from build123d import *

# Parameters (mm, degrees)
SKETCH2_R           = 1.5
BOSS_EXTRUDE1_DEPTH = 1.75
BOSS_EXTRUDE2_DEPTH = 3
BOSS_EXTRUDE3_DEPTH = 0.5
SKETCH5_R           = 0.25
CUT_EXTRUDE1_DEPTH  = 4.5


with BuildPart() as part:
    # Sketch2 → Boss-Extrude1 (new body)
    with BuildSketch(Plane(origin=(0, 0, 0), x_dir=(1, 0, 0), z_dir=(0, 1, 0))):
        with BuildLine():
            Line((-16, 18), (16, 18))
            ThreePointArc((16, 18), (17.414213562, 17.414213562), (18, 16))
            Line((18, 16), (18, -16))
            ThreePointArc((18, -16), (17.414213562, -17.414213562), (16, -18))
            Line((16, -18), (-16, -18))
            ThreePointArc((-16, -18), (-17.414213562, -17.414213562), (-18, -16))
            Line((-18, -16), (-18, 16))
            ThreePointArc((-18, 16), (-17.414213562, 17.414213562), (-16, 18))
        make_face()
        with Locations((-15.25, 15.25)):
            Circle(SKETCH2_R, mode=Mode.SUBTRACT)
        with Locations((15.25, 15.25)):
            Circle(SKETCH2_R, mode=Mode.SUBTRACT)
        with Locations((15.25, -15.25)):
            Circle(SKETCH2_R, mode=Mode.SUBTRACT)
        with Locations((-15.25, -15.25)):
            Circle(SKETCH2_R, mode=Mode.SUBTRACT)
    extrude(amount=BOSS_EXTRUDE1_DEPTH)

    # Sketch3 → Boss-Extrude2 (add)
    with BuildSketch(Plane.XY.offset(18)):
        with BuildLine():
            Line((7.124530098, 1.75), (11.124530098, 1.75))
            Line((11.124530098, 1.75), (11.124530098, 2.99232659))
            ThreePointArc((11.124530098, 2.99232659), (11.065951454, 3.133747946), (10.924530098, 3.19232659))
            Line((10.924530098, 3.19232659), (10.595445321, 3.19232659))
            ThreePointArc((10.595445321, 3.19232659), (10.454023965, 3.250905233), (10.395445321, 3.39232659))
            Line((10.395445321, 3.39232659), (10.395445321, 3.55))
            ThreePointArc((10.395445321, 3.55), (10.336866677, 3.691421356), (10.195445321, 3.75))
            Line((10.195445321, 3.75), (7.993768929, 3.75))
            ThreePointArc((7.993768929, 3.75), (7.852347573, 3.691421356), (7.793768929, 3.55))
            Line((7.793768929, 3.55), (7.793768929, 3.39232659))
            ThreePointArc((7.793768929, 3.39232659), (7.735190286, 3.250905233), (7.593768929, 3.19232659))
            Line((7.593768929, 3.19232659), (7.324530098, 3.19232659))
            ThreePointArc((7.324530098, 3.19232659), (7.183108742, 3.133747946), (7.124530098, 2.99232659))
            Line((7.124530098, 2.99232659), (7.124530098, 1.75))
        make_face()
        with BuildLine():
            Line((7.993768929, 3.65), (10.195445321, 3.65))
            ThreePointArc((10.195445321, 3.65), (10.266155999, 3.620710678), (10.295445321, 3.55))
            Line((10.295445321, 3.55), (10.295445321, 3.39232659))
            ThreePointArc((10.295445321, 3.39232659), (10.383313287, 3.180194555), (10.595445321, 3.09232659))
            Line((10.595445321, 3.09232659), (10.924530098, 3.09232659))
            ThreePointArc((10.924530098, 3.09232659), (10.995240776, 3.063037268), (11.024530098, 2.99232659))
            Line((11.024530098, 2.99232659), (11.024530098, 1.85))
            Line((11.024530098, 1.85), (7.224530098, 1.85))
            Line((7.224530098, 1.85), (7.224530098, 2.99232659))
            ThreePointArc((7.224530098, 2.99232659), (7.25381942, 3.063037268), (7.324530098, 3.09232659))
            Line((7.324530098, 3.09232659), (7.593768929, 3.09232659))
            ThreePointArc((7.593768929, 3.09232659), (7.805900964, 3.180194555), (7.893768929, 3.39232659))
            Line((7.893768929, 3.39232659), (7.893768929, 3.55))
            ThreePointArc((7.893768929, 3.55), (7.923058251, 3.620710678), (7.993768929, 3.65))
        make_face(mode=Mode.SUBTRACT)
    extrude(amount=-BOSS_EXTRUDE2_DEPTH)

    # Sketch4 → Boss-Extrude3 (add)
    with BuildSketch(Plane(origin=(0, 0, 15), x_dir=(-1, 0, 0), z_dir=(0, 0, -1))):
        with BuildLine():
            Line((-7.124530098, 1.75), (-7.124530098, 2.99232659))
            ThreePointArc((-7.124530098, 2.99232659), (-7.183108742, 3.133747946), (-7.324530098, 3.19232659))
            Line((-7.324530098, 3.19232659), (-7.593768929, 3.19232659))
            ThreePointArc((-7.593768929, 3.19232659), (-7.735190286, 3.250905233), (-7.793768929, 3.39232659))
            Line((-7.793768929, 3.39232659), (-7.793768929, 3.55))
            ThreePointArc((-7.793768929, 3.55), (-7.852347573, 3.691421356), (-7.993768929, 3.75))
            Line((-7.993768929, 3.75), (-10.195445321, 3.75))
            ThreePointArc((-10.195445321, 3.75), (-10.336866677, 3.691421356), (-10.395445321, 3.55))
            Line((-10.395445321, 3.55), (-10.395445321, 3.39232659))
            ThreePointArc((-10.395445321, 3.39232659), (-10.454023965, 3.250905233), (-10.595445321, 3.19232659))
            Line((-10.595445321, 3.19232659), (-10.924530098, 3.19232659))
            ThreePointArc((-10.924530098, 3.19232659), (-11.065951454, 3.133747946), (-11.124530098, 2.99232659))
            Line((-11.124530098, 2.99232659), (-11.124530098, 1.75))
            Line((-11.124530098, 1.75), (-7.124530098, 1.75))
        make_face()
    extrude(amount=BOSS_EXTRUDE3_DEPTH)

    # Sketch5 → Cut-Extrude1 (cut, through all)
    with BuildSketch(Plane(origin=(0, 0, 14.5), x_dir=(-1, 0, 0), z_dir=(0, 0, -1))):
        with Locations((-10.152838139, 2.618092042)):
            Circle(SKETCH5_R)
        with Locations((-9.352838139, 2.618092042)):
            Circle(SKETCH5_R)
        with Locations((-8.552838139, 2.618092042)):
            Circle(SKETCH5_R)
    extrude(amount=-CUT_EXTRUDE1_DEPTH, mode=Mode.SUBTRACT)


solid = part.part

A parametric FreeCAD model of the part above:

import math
import FreeCAD as App
import Part
import Sketcher

doc = App.newDocument("Part")
body = doc.addObject("PartDesign::Body", "Body")

# Sketch on XZ plane
sketch1 = body.newObject("Sketcher::SketchObject", "Sketch")
sketch1.AttachmentSupport = (doc.getObject("XZ_Plane"), [""])
sketch1.MapMode = "FlatFace"
sketch1.addGeometry([
    Part.LineSegment(App.Vector(16, -18, 0), App.Vector(-16, -18, 0)),  # 0
    Part.ArcOfCircle(Part.Circle(App.Vector(-16, -16, 0), App.Vector(0, 0, 1), 2), math.radians(-180), math.radians(-90)),  # 1
    Part.LineSegment(App.Vector(-18, -16, 0), App.Vector(-18, 16, 0)),  # 2
    Part.ArcOfCircle(Part.Circle(App.Vector(-16, 16, 0), App.Vector(0, 0, 1), 2), math.radians(90), math.radians(180)),  # 3
    Part.LineSegment(App.Vector(-16, 18, 0), App.Vector(16, 18, 0)),  # 4
    Part.ArcOfCircle(Part.Circle(App.Vector(16, 16, 0), App.Vector(0, 0, 1), 2), math.radians(0), math.radians(90)),  # 5
    Part.LineSegment(App.Vector(18, 16, 0), App.Vector(18, -16, 0)),  # 6
    Part.ArcOfCircle(Part.Circle(App.Vector(16, -16, 0), App.Vector(0, 0, 1), 2), math.radians(-90), math.radians(0)),  # 7
    Part.Circle(App.Vector(15.25, 15.25, 0), App.Vector(0, 0, 1), 1.5),  # 8
    Part.Circle(App.Vector(-15.25, 15.25, 0), App.Vector(0, 0, 1), 1.5),  # 9
    Part.Circle(App.Vector(15.25, -15.25, 0), App.Vector(0, 0, 1), 1.5),  # 10
    Part.Circle(App.Vector(-15.25, -15.25, 0), App.Vector(0, 0, 1), 1.5),  # 11
], False)
sketch1.addConstraint([
    Sketcher.Constraint("Tangent", 0, 2, 1, 2),
    Sketcher.Constraint("Tangent", 1, 1, 2, 1),
    Sketcher.Constraint("Tangent", 2, 2, 3, 2),
    Sketcher.Constraint("Tangent", 3, 1, 4, 1),
    Sketcher.Constraint("Tangent", 4, 2, 5, 2),
    Sketcher.Constraint("Tangent", 5, 1, 6, 1),
    Sketcher.Constraint("Tangent", 6, 2, 7, 2),
    Sketcher.Constraint("Tangent", 7, 1, 0, 1),
    Sketcher.Constraint("Horizontal", 0),
    Sketcher.Constraint("Vertical", 2),
    Sketcher.Constraint("Horizontal", 4),
    Sketcher.Constraint("Vertical", 6),
    Sketcher.Constraint("Equal", 1, 3),
    Sketcher.Constraint("Equal", 3, 5),
    Sketcher.Constraint("Equal", 5, 7),
    Sketcher.Constraint("Equal", 8, 9),
    Sketcher.Constraint("Equal", 9, 10),
    Sketcher.Constraint("Equal", 10, 11),
    Sketcher.Constraint("Symmetric", 1, 3, 5, 3, -1, 1),
    Sketcher.Constraint("Symmetric", 9, 3, 10, 3, -1, 1),
    Sketcher.Constraint("Symmetric", 8, 3, 11, 3, -1, 1),
    Sketcher.Constraint("Symmetric", 8, 3, 9, 3, -2),
    Sketcher.Constraint("Equal", 4, 2),
    Sketcher.Constraint("Diameter", 8, 3.0),
    Sketcher.Constraint("Radius", 1, 2.0),
    Sketcher.Constraint("DistanceX", 0, 2, 0, 1, 32.0),
    Sketcher.Constraint("DistanceX", 9, 3, 8, 3, 30.5),
    Sketcher.Constraint("DistanceY", 10, 3, 8, 3, 30.5),
])
pad1 = body.newObject("PartDesign::Pad", "Pad")
pad1.Profile = sketch1
pad1.Length = 1.75
pad1.Reversed = True

# Sketch on XY plane
sketch2 = body.newObject("Sketcher::SketchObject", "Sketch001")
sketch2.AttachmentSupport = (doc.getObject("XY_Plane"), [""])
sketch2.MapMode = "FlatFace"
sketch2.AttachmentOffset = App.Placement(App.Vector(0, 0, 18), App.Rotation())
sketch2.addGeometry([
    Part.LineSegment(App.Vector(7.12453, 1.75, 0), App.Vector(11.12453, 1.75, 0)),  # 0
    Part.LineSegment(App.Vector(11.12453, 1.75, 0), App.Vector(11.12453, 2.992327, 0)),  # 1
    Part.ArcOfCircle(Part.Circle(App.Vector(10.92453, 2.992327, 0), App.Vector(0, 0, 1), 0.2), math.radians(0), math.radians(90)),  # 2
    Part.LineSegment(App.Vector(10.92453, 3.192327, 0), App.Vector(10.595445, 3.192327, 0)),  # 3
    Part.ArcOfCircle(Part.Circle(App.Vector(10.595445, 3.392327, 0), App.Vector(0, 0, 1), 0.2), math.radians(180), math.radians(270)),  # 4
    Part.LineSegment(App.Vector(10.395445, 3.392327, 0), App.Vector(10.395445, 3.55, 0)),  # 5
    Part.ArcOfCircle(Part.Circle(App.Vector(10.195445, 3.55, 0), App.Vector(0, 0, 1), 0.2), math.radians(0), math.radians(90)),  # 6
    Part.LineSegment(App.Vector(10.195445, 3.75, 0), App.Vector(7.993769, 3.75, 0)),  # 7
    Part.ArcOfCircle(Part.Circle(App.Vector(7.993769, 3.55, 0), App.Vector(0, 0, 1), 0.2), math.radians(90), math.radians(180)),  # 8
    Part.LineSegment(App.Vector(7.793769, 3.55, 0), App.Vector(7.793769, 3.392327, 0)),  # 9
    Part.ArcOfCircle(Part.Circle(App.Vector(7.593769, 3.392327, 0), App.Vector(0, 0, 1), 0.2), math.radians(-90.000001), math.radians(0.000001)),  # 10
    Part.LineSegment(App.Vector(7.593769, 3.192327, 0), App.Vector(7.32453, 3.192327, 0)),  # 11
    Part.ArcOfCircle(Part.Circle(App.Vector(7.32453, 2.992327, 0), App.Vector(0, 0, 1), 0.2), math.radians(90), math.radians(180)),  # 12
    Part.LineSegment(App.Vector(7.12453, 2.992327, 0), App.Vector(7.12453, 1.75, 0)),  # 13
    Part.ArcOfCircle(Part.Circle(App.Vector(7.993769, 3.55, 0), App.Vector(0, 0, 1), 0.1), math.radians(90), math.radians(180)),  # 14
    Part.LineSegment(App.Vector(7.993769, 3.65, 0), App.Vector(10.195445, 3.65, 0)),  # 15
    Part.ArcOfCircle(Part.Circle(App.Vector(10.195445, 3.55, 0), App.Vector(0, 0, 1), 0.1), math.radians(0), math.radians(90)),  # 16
    Part.LineSegment(App.Vector(10.295445, 3.55, 0), App.Vector(10.295445, 3.392327, 0)),  # 17
    Part.ArcOfCircle(Part.Circle(App.Vector(10.595445, 3.392327, 0), App.Vector(0, 0, 1), 0.3), math.radians(180), math.radians(270)),  # 18
    Part.LineSegment(App.Vector(10.595445, 3.092327, 0), App.Vector(10.92453, 3.092327, 0)),  # 19
    Part.ArcOfCircle(Part.Circle(App.Vector(10.92453, 2.992327, 0), App.Vector(0, 0, 1), 0.1), math.radians(0), math.radians(90)),  # 20
    Part.LineSegment(App.Vector(11.02453, 2.992327, 0), App.Vector(11.02453, 1.85, 0)),  # 21
    Part.LineSegment(App.Vector(11.02453, 1.85, 0), App.Vector(7.22453, 1.85, 0)),  # 22
    Part.LineSegment(App.Vector(7.22453, 1.85, 0), App.Vector(7.22453, 2.992327, 0)),  # 23
    Part.ArcOfCircle(Part.Circle(App.Vector(7.32453, 2.992327, 0), App.Vector(0, 0, 1), 0.1), math.radians(90), math.radians(180)),  # 24
    Part.LineSegment(App.Vector(7.32453, 3.092327, 0), App.Vector(7.593769, 3.092327, 0)),  # 25
    Part.ArcOfCircle(Part.Circle(App.Vector(7.593769, 3.392327, 0), App.Vector(0, 0, 1), 0.3), math.radians(-90), math.radians(0)),  # 26
    Part.LineSegment(App.Vector(7.893769, 3.392327, 0), App.Vector(7.893769, 3.55, 0)),  # 27
], False)
sketch2.addConstraint([
    Sketcher.Constraint("Coincident", 0, 2, 1, 1),
    Sketcher.Constraint("Tangent", 1, 2, 2, 1),
    Sketcher.Constraint("Tangent", 2, 2, 3, 1),
    Sketcher.Constraint("Tangent", 3, 2, 4, 2),
    Sketcher.Constraint("Tangent", 4, 1, 5, 1),
    Sketcher.Constraint("Tangent", 5, 2, 6, 1),
    Sketcher.Constraint("Tangent", 6, 2, 7, 1),
    Sketcher.Constraint("Tangent", 7, 2, 8, 1),
    Sketcher.Constraint("Tangent", 8, 2, 9, 1),
    Sketcher.Constraint("Tangent", 9, 2, 10, 2),
    Sketcher.Constraint("Tangent", 10, 1, 11, 1),
    Sketcher.Constraint("Tangent", 11, 2, 12, 1),
    Sketcher.Constraint("Tangent", 12, 2, 13, 1),
    Sketcher.Constraint("Coincident", 13, 2, 0, 1),
    Sketcher.Constraint("Tangent", 14, 1, 15, 1),
    Sketcher.Constraint("Tangent", 15, 2, 16, 2),
    Sketcher.Constraint("Tangent", 16, 1, 17, 1),
    Sketcher.Constraint("Tangent", 17, 2, 18, 1),
    Sketcher.Constraint("Tangent", 18, 2, 19, 1),
    Sketcher.Constraint("Tangent", 19, 2, 20, 2),
    Sketcher.Constraint("Tangent", 20, 1, 21, 1),
    Sketcher.Constraint("Coincident", 21, 2, 22, 1),
    Sketcher.Constraint("Coincident", 22, 2, 23, 1),
    Sketcher.Constraint("Tangent", 23, 2, 24, 2),
    Sketcher.Constraint("Tangent", 24, 1, 25, 1),
    Sketcher.Constraint("Tangent", 25, 2, 26, 1),
    Sketcher.Constraint("Tangent", 26, 2, 27, 1),
    Sketcher.Constraint("Tangent", 27, 2, 14, 2),
    Sketcher.Constraint("Horizontal", 0),
    Sketcher.Constraint("Vertical", 1),
    Sketcher.Constraint("Horizontal", 3),
    Sketcher.Constraint("Vertical", 5),
    Sketcher.Constraint("Horizontal", 7),
    Sketcher.Constraint("Vertical", 9),
    Sketcher.Constraint("Horizontal", 11),
    Sketcher.Constraint("Vertical", 13),
    Sketcher.Constraint("Horizontal", 15),
    Sketcher.Constraint("Vertical", 17),
    Sketcher.Constraint("Horizontal", 19),
    Sketcher.Constraint("Vertical", 21),
    Sketcher.Constraint("Horizontal", 22),
    Sketcher.Constraint("Vertical", 23),
    Sketcher.Constraint("Horizontal", 25),
    Sketcher.Constraint("Vertical", 27),
    Sketcher.Constraint("Coincident", 14, 3, 8, 3),
    Sketcher.Constraint("Coincident", 16, 3, 6, 3),
    Sketcher.Constraint("Coincident", 18, 3, 4, 3),
    Sketcher.Constraint("Coincident", 20, 3, 2, 3),
    Sketcher.Constraint("Coincident", 24, 3, 12, 3),
    Sketcher.Constraint("Coincident", 26, 3, 10, 3),
    Sketcher.Constraint("Equal", 2, 4),
    Sketcher.Constraint("Equal", 4, 6),
    Sketcher.Constraint("Equal", 6, 8),
    Sketcher.Constraint("Equal", 8, 10),
    Sketcher.Constraint("Equal", 10, 12),
    Sketcher.Constraint("Horizontal", 4, 3, 10, 3),
    Sketcher.Constraint("Radius", 2, 0.2),
    Sketcher.Constraint("Radius", 14, 0.1),
    Sketcher.Constraint("DistanceX", 0, 1, 0, 2, 4.0),
    Sketcher.Constraint("DistanceY", 0, 2, 6, 3, 1.8),
    Sketcher.Constraint("DistanceY", 0, 2, 21, 2, 0.1),
    Sketcher.Constraint("DistanceY", -1, 1, 6, 3, 3.55),
    Sketcher.Constraint("DistanceX", 11, 2, 11, 1, 0.269239),
    Sketcher.Constraint("DistanceX", 3, 2, 3, 1, 0.329085),
    Sketcher.Constraint("DistanceY", 1, 1, 1, 2, 1.242327),
    Sketcher.Constraint("DistanceX", -1, 1, 2, 3, 10.92453),
])
pad2 = body.newObject("PartDesign::Pad", "Pad001")
pad2.Profile = sketch2
pad2.Length = 3
pad2.Reversed = True

# Sketch on XY plane
sketch3 = body.newObject("Sketcher::SketchObject", "Sketch002")
sketch3.AttachmentSupport = (doc.getObject("XY_Plane"), [""])
sketch3.MapMode = "FlatFace"
sketch3.AttachmentOffset = App.Placement(App.Vector(0, 0, 15), App.Rotation())
sketch3.addGeometry([
    Part.LineSegment(App.Vector(7.12453, 1.75, 0), App.Vector(7.12453, 2.992327, 0)),  # 0
    Part.ArcOfCircle(Part.Circle(App.Vector(7.32453, 2.992327, 0), App.Vector(0, 0, 1), 0.2), math.radians(90), math.radians(180)),  # 1
    Part.LineSegment(App.Vector(7.32453, 3.192327, 0), App.Vector(7.593769, 3.192327, 0)),  # 2
    Part.ArcOfCircle(Part.Circle(App.Vector(7.593769, 3.392327, 0), App.Vector(0, 0, 1), 0.2), math.radians(-90.000001), math.radians(0.000001)),  # 3
    Part.LineSegment(App.Vector(7.793769, 3.392327, 0), App.Vector(7.793769, 3.55, 0)),  # 4
    Part.ArcOfCircle(Part.Circle(App.Vector(7.993769, 3.55, 0), App.Vector(0, 0, 1), 0.2), math.radians(90), math.radians(180)),  # 5
    Part.LineSegment(App.Vector(7.993769, 3.75, 0), App.Vector(10.195445, 3.75, 0)),  # 6
    Part.ArcOfCircle(Part.Circle(App.Vector(10.195445, 3.55, 0), App.Vector(0, 0, 1), 0.2), math.radians(0), math.radians(90)),  # 7
    Part.LineSegment(App.Vector(10.395445, 3.55, 0), App.Vector(10.395445, 3.392327, 0)),  # 8
    Part.ArcOfCircle(Part.Circle(App.Vector(10.595445, 3.392327, 0), App.Vector(0, 0, 1), 0.2), math.radians(180), math.radians(270)),  # 9
    Part.LineSegment(App.Vector(10.595445, 3.192327, 0), App.Vector(10.92453, 3.192327, 0)),  # 10
    Part.ArcOfCircle(Part.Circle(App.Vector(10.92453, 2.992327, 0), App.Vector(0, 0, 1), 0.2), math.radians(0), math.radians(90)),  # 11
    Part.LineSegment(App.Vector(11.12453, 2.992327, 0), App.Vector(11.12453, 1.75, 0)),  # 12
    Part.LineSegment(App.Vector(11.12453, 1.75, 0), App.Vector(7.12453, 1.75, 0)),  # 13
], False)
sketch3.addConstraint([
    Sketcher.Constraint("Tangent", 0, 2, 1, 2),
    Sketcher.Constraint("Tangent", 1, 1, 2, 1),
    Sketcher.Constraint("Tangent", 2, 2, 3, 1),
    Sketcher.Constraint("Tangent", 3, 2, 4, 1),
    Sketcher.Constraint("Tangent", 4, 2, 5, 2),
    Sketcher.Constraint("Tangent", 5, 1, 6, 1),
    Sketcher.Constraint("Tangent", 6, 2, 7, 2),
    Sketcher.Constraint("Tangent", 7, 1, 8, 1),
    Sketcher.Constraint("Tangent", 8, 2, 9, 1),
    Sketcher.Constraint("Tangent", 9, 2, 10, 1),
    Sketcher.Constraint("Tangent", 10, 2, 11, 2),
    Sketcher.Constraint("Tangent", 11, 1, 12, 1),
    Sketcher.Constraint("Coincident", 12, 2, 13, 1),
    Sketcher.Constraint("Coincident", 13, 2, 0, 1),
    Sketcher.Constraint("Vertical", 0),
    Sketcher.Constraint("Horizontal", 2),
    Sketcher.Constraint("Vertical", 4),
    Sketcher.Constraint("Horizontal", 6),
    Sketcher.Constraint("Vertical", 8),
    Sketcher.Constraint("Horizontal", 10),
    Sketcher.Constraint("Vertical", 12),
    Sketcher.Constraint("Horizontal", 13),
    Sketcher.Constraint("Equal", 1, 3),
    Sketcher.Constraint("Equal", 3, 5),
    Sketcher.Constraint("Equal", 5, 7),
    Sketcher.Constraint("Equal", 7, 9),
    Sketcher.Constraint("Equal", 9, 11),
    Sketcher.Constraint("Horizontal", 3, 3, 9, 3),
    Sketcher.Constraint("Radius", 1, 0.2),
    Sketcher.Constraint("DistanceX", 13, 2, 13, 1, 4.0),
    Sketcher.Constraint("DistanceY", -1, 1, 5, 3, 3.55),
    Sketcher.Constraint("DistanceY", -1, 1, 12, 2, 1.75),
    Sketcher.Constraint("DistanceX", 2, 1, 2, 2, 0.269239),
    Sketcher.Constraint("DistanceX", 6, 1, 6, 2, 2.201676),
    Sketcher.Constraint("DistanceY", 0, 1, 0, 2, 1.242327),
    Sketcher.Constraint("DistanceX", -1, 1, 1, 3, 7.32453),
])
pad3 = body.newObject("PartDesign::Pad", "Pad002")
pad3.Profile = sketch3
pad3.Length = 0.5
pad3.Reversed = True

# Sketch on XY plane
sketch4 = body.newObject("Sketcher::SketchObject", "Sketch003")
sketch4.AttachmentSupport = (doc.getObject("XY_Plane"), [""])
sketch4.MapMode = "FlatFace"
sketch4.AttachmentOffset = App.Placement(App.Vector(0, 0, 14.5), App.Rotation())
sketch4.addGeometry([
    Part.Circle(App.Vector(10.152838, 2.618092, 0), App.Vector(0, 0, 1), 0.25),
    Part.Circle(App.Vector(9.352838, 2.618092, 0), App.Vector(0, 0, 1), 0.25),
    Part.Circle(App.Vector(8.552838, 2.618092, 0), App.Vector(0, 0, 1), 0.25),
], False)
sketch4.addConstraint([
    Sketcher.Constraint("Equal", 0, 1),
    Sketcher.Constraint("Equal", 1, 2),
    Sketcher.Constraint("Horizontal", 0, 3, 1, 3),
    Sketcher.Constraint("Horizontal", 1, 3, 2, 3),
    Sketcher.Constraint("Diameter", 0, 0.5),
    Sketcher.Constraint("DistanceX", 1, 3, 0, 3, 0.8),
    Sketcher.Constraint("DistanceX", 2, 3, 1, 3, 0.8),
    Sketcher.Constraint("DistanceX", -1, 1, 0, 3, 10.152838),
    Sketcher.Constraint("DistanceY", -1, 1, 0, 3, 2.618092),
])
pocket1 = body.newObject("PartDesign::Pocket", "Pocket")
pocket1.Profile = sketch4
pocket1.Type = "ThroughAll"
pocket1.Reversed = True

doc.recompute()
